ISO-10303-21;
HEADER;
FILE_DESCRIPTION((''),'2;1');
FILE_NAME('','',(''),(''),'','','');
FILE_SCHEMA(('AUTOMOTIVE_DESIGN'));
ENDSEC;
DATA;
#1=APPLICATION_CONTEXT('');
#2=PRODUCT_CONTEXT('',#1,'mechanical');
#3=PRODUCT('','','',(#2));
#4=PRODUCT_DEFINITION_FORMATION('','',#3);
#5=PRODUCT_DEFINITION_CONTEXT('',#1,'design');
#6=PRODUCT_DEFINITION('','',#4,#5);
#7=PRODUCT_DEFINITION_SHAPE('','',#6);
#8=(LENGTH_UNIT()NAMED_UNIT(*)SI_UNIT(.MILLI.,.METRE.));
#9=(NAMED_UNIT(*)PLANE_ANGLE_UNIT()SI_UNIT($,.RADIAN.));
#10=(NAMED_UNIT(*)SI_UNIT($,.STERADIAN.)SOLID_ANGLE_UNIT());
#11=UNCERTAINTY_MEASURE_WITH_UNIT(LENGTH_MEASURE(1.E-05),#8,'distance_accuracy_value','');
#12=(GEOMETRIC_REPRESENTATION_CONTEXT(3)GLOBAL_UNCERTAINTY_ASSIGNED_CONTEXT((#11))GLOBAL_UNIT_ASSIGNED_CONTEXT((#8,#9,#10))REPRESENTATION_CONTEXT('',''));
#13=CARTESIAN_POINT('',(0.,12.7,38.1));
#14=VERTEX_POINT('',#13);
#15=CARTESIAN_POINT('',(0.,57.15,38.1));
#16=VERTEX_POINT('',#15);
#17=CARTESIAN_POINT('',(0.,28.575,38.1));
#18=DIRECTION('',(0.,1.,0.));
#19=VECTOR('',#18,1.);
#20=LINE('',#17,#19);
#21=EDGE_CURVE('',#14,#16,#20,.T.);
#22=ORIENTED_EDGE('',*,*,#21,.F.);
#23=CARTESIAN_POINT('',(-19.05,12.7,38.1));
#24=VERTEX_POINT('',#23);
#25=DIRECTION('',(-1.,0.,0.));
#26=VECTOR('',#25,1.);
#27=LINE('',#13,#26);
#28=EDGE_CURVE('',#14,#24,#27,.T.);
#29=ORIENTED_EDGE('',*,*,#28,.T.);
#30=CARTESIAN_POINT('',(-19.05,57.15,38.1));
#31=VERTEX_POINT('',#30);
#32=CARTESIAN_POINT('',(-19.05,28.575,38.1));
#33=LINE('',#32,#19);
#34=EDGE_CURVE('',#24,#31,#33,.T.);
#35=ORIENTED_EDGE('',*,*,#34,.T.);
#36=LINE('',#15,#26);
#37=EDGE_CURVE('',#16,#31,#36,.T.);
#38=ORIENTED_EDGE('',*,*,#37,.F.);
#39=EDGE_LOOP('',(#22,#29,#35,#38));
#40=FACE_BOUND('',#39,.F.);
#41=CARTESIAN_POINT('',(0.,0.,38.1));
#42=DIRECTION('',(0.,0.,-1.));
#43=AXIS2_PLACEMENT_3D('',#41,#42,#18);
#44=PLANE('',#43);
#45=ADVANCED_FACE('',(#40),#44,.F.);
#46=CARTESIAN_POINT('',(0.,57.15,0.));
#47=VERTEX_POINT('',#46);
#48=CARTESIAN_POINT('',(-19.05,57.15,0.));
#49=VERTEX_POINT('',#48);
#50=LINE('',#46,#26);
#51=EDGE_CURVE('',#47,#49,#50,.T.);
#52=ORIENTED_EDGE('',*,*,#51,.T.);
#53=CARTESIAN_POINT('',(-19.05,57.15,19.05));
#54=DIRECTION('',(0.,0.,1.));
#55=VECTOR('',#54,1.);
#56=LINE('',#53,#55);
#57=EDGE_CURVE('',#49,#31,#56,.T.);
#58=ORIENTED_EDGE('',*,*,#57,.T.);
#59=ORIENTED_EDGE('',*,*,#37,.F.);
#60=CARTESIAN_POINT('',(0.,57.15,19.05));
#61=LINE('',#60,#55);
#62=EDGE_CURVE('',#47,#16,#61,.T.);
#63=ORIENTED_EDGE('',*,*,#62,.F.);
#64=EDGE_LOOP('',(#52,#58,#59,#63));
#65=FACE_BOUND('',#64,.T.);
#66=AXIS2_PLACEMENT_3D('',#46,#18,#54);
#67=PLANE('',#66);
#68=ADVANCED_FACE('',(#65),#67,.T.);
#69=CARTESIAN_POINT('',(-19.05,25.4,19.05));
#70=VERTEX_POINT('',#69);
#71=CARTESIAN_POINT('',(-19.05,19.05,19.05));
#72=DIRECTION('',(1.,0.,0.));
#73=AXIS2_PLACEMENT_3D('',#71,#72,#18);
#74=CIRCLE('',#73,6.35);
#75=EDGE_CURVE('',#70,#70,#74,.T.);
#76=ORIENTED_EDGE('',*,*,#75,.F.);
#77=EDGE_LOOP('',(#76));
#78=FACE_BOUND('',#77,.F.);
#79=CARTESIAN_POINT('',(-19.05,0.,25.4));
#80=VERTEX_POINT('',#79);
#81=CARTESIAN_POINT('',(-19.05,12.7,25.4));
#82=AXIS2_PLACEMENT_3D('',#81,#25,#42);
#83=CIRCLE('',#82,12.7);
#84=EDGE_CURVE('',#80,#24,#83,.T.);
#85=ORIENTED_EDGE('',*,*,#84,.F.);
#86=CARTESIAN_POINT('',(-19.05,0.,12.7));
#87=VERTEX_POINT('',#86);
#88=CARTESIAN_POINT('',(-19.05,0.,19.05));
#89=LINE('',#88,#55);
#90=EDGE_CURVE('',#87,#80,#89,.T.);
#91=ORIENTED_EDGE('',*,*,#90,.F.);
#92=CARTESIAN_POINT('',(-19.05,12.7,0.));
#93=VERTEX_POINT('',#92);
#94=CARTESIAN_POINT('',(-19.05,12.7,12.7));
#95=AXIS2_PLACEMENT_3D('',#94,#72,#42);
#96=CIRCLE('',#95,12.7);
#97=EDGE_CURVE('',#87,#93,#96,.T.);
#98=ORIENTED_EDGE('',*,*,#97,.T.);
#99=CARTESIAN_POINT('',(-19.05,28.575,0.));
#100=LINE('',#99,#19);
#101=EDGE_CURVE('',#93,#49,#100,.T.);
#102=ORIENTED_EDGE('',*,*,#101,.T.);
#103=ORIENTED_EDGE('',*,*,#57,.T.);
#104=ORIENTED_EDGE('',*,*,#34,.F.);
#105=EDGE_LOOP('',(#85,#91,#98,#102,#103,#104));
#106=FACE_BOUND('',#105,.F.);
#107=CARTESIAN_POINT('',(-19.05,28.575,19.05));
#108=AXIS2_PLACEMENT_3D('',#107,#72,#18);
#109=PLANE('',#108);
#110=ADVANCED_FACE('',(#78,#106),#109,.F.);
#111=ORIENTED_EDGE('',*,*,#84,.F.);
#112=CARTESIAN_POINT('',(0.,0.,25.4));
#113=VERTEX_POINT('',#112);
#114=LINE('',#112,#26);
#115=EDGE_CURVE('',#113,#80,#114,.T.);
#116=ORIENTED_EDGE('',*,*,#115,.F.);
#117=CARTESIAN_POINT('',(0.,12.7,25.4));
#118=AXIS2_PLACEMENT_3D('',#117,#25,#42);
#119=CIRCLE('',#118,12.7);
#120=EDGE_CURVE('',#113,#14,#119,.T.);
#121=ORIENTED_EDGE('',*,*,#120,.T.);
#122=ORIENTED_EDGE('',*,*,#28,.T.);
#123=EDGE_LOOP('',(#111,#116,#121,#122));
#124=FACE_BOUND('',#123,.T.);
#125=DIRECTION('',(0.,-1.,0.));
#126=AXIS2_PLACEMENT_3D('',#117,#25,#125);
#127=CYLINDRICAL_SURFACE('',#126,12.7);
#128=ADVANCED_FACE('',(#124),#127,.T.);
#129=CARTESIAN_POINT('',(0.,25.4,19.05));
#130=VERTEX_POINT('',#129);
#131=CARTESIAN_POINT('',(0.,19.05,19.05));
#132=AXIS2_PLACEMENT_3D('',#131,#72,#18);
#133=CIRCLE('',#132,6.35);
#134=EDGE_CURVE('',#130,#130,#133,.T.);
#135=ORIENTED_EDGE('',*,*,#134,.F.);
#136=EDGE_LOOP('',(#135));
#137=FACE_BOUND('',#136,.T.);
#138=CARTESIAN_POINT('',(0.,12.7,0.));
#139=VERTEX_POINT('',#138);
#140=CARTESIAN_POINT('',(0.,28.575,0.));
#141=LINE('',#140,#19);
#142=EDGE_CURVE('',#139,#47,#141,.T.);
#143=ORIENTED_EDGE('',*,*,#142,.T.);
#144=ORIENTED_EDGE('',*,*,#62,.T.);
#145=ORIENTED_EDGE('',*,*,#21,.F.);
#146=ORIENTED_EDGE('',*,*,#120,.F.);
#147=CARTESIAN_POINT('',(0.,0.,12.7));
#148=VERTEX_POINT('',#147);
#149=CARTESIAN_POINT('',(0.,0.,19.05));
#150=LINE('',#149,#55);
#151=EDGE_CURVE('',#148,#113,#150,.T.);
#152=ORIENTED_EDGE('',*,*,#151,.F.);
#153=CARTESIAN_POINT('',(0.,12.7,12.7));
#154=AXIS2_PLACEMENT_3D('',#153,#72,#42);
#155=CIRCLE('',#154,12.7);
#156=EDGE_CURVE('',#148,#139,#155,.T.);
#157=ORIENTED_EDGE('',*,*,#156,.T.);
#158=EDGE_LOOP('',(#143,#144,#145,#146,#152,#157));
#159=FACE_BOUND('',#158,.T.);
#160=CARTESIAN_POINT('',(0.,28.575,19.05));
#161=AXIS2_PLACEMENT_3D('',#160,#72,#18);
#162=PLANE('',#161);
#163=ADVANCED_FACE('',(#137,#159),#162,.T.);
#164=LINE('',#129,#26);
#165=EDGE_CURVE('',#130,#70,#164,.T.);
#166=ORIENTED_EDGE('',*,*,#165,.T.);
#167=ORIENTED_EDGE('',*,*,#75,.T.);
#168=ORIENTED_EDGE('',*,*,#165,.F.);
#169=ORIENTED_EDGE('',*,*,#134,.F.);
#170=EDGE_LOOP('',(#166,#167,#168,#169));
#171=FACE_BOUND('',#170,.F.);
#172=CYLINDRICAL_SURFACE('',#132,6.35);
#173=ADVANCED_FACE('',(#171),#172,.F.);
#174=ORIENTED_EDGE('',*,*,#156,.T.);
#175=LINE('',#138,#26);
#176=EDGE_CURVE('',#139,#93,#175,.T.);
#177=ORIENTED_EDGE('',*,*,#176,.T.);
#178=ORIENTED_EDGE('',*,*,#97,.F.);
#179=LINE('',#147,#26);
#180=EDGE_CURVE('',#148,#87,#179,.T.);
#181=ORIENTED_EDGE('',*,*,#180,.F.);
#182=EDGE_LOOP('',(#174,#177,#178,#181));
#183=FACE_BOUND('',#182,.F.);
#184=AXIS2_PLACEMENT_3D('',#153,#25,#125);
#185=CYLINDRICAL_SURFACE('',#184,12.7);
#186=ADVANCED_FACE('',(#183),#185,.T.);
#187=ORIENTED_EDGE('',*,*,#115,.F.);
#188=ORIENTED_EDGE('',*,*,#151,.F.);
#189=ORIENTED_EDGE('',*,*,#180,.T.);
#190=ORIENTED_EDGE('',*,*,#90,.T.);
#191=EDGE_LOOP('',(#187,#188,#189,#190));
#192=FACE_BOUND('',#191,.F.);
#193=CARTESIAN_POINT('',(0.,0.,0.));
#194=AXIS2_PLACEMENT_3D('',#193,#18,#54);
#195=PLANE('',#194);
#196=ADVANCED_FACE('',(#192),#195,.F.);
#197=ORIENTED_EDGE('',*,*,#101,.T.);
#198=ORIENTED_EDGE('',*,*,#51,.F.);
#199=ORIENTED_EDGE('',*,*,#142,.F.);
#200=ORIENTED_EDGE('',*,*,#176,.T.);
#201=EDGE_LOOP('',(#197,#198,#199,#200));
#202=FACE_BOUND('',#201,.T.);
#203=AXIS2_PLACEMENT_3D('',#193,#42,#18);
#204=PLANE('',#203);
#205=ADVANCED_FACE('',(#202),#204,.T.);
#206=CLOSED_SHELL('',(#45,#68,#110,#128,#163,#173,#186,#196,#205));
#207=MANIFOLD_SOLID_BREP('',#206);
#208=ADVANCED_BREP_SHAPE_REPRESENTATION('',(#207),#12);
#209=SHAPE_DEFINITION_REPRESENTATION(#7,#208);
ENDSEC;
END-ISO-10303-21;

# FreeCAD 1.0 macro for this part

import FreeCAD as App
import Part
import Sketcher
Q = App.Units.Quantity


def edges_at(feature, points):
    """Names of the edges that pass closest to the given points."""
    edges = feature.Shape.Edges
    near = lambda p: min(range(len(edges)), key=lambda i: edges[i].distToShape(Part.Vertex(*p))[0])
    return sorted({f"Edge{near(p) + 1}" for p in points})

doc = App.newDocument("Part")
body = doc.addObject("PartDesign::Body", "Body")

# Sketch on YZ plane
sketch1 = body.newObject("Sketcher::SketchObject", "Sketch")
sketch1.AttachmentSupport = (doc.getObject("YZ_Plane"), [""])
sketch1.MapMode = "FlatFace"
sketch1.addGeometry([
    Part.LineSegment(App.Vector(0, 38, 0), App.Vector(0, 0, 0)),  # 0
    Part.LineSegment(App.Vector(0, 0, 0), App.Vector(57, 0, 0)),  # 1
    Part.LineSegment(App.Vector(57, 0, 0), App.Vector(57, 38, 0)),  # 2
    Part.LineSegment(App.Vector(57, 38, 0), App.Vector(0, 38, 0)),  # 3
    Part.Circle(App.Vector(19, 19, 0), App.Vector(0, 0, 1), 6),  # 4
], False)
sketch1.addConstraint([
    Sketcher.Constraint("Coincident", 0, 2, 1, 1),
    Sketcher.Constraint("Coincident", 1, 2, 2, 1),
    Sketcher.Constraint("Coincident", 2, 2, 3, 1),
    Sketcher.Constraint("Coincident", 3, 2, 0, 1),
    Sketcher.Constraint("Vertical", 0),
    Sketcher.Constraint("Horizontal", 1),
    Sketcher.Constraint("Vertical", 2),
    Sketcher.Constraint("Horizontal", 3),
    Sketcher.Constraint("Coincident", 0, 2, -1, 1),
    Sketcher.Constraint("Diameter", 4, Q("0.5 in")),
    Sketcher.Constraint("DistanceY", 0, 2, 0, 1, Q("1.5 in")),
    Sketcher.Constraint("DistanceX", 1, 1, 1, 2, Q("2.25 in")),
    Sketcher.Constraint("DistanceX", 4, 3, 1, 2, Q("1.5 in")),
    Sketcher.Constraint("DistanceY", -1, 1, 4, 3, Q("0.75 in")),
])
pad1 = body.newObject("PartDesign::Pad", "Pad")
pad1.Profile = sketch1
pad1.Length = Q("0.75 in")
pad1.Reversed = True
doc.recompute()

fillet = body.newObject("PartDesign::Fillet", "Fillet")
fillet.Base = (pad1, edges_at(pad1, [(-9.525, 0, 0), (-9.525, 0, 38.1)]))
fillet.Radius = Q("0.5 in")

doc.recompute()
